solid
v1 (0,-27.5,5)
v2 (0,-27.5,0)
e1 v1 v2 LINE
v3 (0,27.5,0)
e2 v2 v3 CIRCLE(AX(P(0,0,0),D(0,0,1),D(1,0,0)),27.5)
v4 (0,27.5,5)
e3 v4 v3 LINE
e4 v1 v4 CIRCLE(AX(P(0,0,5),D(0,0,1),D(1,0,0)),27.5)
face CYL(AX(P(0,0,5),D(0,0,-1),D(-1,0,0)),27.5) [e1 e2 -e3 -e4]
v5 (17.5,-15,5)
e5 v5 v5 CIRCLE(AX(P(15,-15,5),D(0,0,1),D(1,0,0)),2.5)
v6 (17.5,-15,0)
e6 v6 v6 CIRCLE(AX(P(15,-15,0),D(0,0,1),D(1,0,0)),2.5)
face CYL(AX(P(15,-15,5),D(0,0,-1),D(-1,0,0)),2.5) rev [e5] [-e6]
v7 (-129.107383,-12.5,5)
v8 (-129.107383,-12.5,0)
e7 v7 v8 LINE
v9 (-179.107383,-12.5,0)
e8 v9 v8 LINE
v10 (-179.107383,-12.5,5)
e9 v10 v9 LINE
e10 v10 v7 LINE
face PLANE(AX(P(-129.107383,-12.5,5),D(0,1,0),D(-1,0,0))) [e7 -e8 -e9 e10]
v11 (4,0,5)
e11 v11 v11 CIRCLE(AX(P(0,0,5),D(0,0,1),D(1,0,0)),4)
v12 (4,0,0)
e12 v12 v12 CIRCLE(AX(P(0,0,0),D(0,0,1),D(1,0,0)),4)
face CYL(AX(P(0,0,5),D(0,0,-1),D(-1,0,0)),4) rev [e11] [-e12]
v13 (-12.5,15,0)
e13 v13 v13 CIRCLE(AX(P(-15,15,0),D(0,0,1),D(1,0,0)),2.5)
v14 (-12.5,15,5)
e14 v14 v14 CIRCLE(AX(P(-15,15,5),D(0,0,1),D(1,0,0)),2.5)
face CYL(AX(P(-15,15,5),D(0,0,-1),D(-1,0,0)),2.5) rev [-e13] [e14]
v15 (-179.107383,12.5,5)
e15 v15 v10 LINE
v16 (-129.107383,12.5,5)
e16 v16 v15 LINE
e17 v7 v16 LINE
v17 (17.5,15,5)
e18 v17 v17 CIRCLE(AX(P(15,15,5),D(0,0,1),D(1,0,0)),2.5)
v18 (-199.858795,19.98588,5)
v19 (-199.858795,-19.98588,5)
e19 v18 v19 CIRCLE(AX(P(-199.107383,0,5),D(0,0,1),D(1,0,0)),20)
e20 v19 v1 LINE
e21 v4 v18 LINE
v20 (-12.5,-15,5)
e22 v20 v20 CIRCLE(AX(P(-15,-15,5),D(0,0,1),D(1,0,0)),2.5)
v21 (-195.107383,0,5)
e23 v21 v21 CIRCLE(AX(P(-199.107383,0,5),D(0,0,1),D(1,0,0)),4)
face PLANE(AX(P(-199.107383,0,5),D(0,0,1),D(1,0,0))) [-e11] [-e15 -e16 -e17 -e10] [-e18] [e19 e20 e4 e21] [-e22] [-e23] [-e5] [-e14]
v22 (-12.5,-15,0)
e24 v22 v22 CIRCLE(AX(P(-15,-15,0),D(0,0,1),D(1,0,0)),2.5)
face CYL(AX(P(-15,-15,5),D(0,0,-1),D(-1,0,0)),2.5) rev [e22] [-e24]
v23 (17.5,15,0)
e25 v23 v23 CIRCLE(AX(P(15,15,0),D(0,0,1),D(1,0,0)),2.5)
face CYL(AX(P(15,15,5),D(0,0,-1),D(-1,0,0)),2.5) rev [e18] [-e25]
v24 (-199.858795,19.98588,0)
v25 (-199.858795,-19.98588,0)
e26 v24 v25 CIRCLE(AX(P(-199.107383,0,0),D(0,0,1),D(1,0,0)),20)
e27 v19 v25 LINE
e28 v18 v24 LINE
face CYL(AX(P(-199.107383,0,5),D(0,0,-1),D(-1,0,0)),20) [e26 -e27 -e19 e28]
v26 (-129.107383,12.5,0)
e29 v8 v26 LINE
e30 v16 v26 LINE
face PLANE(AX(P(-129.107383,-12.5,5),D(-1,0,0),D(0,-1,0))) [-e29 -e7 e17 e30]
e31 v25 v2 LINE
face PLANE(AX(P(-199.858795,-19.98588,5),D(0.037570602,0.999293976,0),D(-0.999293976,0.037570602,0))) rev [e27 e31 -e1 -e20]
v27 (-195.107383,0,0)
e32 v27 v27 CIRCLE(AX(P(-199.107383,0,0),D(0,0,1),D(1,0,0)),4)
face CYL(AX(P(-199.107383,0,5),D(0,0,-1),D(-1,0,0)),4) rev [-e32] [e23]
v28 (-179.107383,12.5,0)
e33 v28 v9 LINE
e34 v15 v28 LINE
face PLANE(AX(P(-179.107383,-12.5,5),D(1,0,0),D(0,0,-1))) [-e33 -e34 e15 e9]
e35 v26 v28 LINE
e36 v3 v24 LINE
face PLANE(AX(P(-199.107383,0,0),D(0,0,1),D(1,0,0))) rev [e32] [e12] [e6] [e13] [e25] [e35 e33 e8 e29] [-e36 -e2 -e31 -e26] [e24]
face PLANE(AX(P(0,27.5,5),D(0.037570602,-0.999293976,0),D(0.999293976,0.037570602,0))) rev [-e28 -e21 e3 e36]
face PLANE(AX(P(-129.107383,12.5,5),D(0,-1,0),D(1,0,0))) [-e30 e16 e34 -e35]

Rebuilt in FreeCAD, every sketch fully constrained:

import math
import FreeCAD as App
import Part
import Sketcher

doc = App.newDocument("Part")
body = doc.addObject("PartDesign::Body", "Body")

# Sketch on XY plane
sketch1 = body.newObject("Sketcher::SketchObject", "Sketch")
sketch1.AttachmentSupport = (doc.getObject("XY_Plane"), [""])
sketch1.MapMode = "FlatFace"
sketch1.addGeometry(Part.LineSegment(App.Vector(0, 27.5, 0), App.Vector(-199.858795, 19.98588, 0)), False)
sketch1.addGeometry(Part.ArcOfCircle(Part.Circle(App.Vector(-199.107383, 0, 0), App.Vector(0, 0, 1), 20), math.radians(92.153144), math.radians(267.846856)), False)
sketch1.addGeometry(Part.LineSegment(App.Vector(-199.858795, -19.98588, 0), App.Vector(0, -27.5, 0)), False)
sketch1.addGeometry(Part.ArcOfCircle(Part.Circle(App.Vector(0, 0, 0), App.Vector(0, 0, 1), 27.5), math.radians(-90), math.radians(90)), False)
sketch1.addGeometry(Part.Circle(App.Vector(-15, -15, 0), App.Vector(0, 0, 1), 2.5), False)
sketch1.addGeometry(Part.Circle(App.Vector(15, -15, 0), App.Vector(0, 0, 1), 2.5), False)
sketch1.addGeometry(Part.Circle(App.Vector(-199.107383, 0, 0), App.Vector(0, 0, 1), 4), False)
sketch1.addGeometry(Part.LineSegment(App.Vector(-129.107383, -12.5, 0), App.Vector(-179.107383, -12.5, 0)), False)
sketch1.addGeometry(Part.LineSegment(App.Vector(-179.107383, -12.5, 0), App.Vector(-179.107383, 12.5, 0)), False)
sketch1.addGeometry(Part.LineSegment(App.Vector(-179.107383, 12.5, 0), App.Vector(-129.107383, 12.5, 0)), False)
sketch1.addGeometry(Part.LineSegment(App.Vector(-129.107383, 12.5, 0), App.Vector(-129.107383, -12.5, 0)), False)
sketch1.addGeometry(Part.Circle(App.Vector(0, 0, 0), App.Vector(0, 0, 1), 4), False)
sketch1.addGeometry(Part.Circle(App.Vector(-15, 15, 0), App.Vector(0, 0, 1), 2.5), False)
sketch1.addGeometry(Part.Circle(App.Vector(15, 15, 0), App.Vector(0, 0, 1), 2.5), False)
sketch1.addConstraint(Sketcher.Constraint("Tangent", 0, 2, 1, 1))
sketch1.addConstraint(Sketcher.Constraint("Tangent", 1, 2, 2, 1))
sketch1.addConstraint(Sketcher.Constraint("Coincident", 2, 2, 3, 1))
sketch1.addConstraint(Sketcher.Constraint("Coincident", 3, 2, 0, 1))
sketch1.addConstraint(Sketcher.Constraint("Coincident", 7, 2, 8, 1))
sketch1.addConstraint(Sketcher.Constraint("Coincident", 8, 2, 9, 1))
sketch1.addConstraint(Sketcher.Constraint("Coincident", 9, 2, 10, 1))
sketch1.addConstraint(Sketcher.Constraint("Coincident", 10, 2, 7, 1))
sketch1.addConstraint(Sketcher.Constraint("Horizontal", 7))
sketch1.addConstraint(Sketcher.Constraint("Vertical", 8))
sketch1.addConstraint(Sketcher.Constraint("Horizontal", 9))
sketch1.addConstraint(Sketcher.Constraint("Vertical", 10))
sketch1.addConstraint(Sketcher.Constraint("Coincident", 3, 3, -1, 1))
sketch1.addConstraint(Sketcher.Constraint("Coincident", 11, 3, -1, 1))
sketch1.addConstraint(Sketcher.Constraint("Coincident", 6, 3, 1, 3))
sketch1.addConstraint(Sketcher.Constraint("Equal", 4, 5))
sketch1.addConstraint(Sketcher.Constraint("Equal", 6, 11))
sketch1.addConstraint(Sketcher.Constraint("Equal", 5, 12))
sketch1.addConstraint(Sketcher.Constraint("Equal", 12, 13))
sketch1.addConstraint(Sketcher.Constraint("Symmetric", 5, 3, 12, 3, -1, 1))
sketch1.addConstraint(Sketcher.Constraint("Symmetric", 4, 3, 13, 3, -1, 1))
sketch1.addConstraint(Sketcher.Constraint("Symmetric", 4, 3, 5, 3, -2))
sketch1.addConstraint(Sketcher.Constraint("Symmetric", 0, 2, 1, 2, -1))
sketch1.addConstraint(Sketcher.Constraint("PointOnObject", 2, 2, -2))
sketch1.addConstraint(Sketcher.Constraint("Diameter", 4, 5.0))
sketch1.addConstraint(Sketcher.Constraint("Diameter", 6, 8.0))
sketch1.addConstraint(Sketcher.Constraint("Radius", 1, 20.0))
sketch1.addConstraint(Sketcher.Constraint("Radius", 3, 27.5))
sketch1.addConstraint(Sketcher.Constraint("DistanceX", 7, 2, 7, 1, 50.0))
sketch1.addConstraint(Sketcher.Constraint("DistanceY", 8, 1, 8, 2, 25.0))
sketch1.addConstraint(Sketcher.Constraint("Distance", 0, 200.0))
sketch1.addConstraint(Sketcher.Constraint("DistanceX", 4, 3, -1, 1, 15.0))
sketch1.addConstraint(Sketcher.Constraint("DistanceY", 4, 3, -1, 1, 15.0))
sketch1.addConstraint(Sketcher.Constraint("DistanceX", 1, 3, 7, 2, 20.0))
sketch1.addConstraint(Sketcher.Constraint("DistanceY", 7, 2, -1, 1, 12.5))
pad1 = body.newObject("PartDesign::Pad", "Pad")
pad1.Profile = sketch1
pad1.Length = 5

doc.recompute()
